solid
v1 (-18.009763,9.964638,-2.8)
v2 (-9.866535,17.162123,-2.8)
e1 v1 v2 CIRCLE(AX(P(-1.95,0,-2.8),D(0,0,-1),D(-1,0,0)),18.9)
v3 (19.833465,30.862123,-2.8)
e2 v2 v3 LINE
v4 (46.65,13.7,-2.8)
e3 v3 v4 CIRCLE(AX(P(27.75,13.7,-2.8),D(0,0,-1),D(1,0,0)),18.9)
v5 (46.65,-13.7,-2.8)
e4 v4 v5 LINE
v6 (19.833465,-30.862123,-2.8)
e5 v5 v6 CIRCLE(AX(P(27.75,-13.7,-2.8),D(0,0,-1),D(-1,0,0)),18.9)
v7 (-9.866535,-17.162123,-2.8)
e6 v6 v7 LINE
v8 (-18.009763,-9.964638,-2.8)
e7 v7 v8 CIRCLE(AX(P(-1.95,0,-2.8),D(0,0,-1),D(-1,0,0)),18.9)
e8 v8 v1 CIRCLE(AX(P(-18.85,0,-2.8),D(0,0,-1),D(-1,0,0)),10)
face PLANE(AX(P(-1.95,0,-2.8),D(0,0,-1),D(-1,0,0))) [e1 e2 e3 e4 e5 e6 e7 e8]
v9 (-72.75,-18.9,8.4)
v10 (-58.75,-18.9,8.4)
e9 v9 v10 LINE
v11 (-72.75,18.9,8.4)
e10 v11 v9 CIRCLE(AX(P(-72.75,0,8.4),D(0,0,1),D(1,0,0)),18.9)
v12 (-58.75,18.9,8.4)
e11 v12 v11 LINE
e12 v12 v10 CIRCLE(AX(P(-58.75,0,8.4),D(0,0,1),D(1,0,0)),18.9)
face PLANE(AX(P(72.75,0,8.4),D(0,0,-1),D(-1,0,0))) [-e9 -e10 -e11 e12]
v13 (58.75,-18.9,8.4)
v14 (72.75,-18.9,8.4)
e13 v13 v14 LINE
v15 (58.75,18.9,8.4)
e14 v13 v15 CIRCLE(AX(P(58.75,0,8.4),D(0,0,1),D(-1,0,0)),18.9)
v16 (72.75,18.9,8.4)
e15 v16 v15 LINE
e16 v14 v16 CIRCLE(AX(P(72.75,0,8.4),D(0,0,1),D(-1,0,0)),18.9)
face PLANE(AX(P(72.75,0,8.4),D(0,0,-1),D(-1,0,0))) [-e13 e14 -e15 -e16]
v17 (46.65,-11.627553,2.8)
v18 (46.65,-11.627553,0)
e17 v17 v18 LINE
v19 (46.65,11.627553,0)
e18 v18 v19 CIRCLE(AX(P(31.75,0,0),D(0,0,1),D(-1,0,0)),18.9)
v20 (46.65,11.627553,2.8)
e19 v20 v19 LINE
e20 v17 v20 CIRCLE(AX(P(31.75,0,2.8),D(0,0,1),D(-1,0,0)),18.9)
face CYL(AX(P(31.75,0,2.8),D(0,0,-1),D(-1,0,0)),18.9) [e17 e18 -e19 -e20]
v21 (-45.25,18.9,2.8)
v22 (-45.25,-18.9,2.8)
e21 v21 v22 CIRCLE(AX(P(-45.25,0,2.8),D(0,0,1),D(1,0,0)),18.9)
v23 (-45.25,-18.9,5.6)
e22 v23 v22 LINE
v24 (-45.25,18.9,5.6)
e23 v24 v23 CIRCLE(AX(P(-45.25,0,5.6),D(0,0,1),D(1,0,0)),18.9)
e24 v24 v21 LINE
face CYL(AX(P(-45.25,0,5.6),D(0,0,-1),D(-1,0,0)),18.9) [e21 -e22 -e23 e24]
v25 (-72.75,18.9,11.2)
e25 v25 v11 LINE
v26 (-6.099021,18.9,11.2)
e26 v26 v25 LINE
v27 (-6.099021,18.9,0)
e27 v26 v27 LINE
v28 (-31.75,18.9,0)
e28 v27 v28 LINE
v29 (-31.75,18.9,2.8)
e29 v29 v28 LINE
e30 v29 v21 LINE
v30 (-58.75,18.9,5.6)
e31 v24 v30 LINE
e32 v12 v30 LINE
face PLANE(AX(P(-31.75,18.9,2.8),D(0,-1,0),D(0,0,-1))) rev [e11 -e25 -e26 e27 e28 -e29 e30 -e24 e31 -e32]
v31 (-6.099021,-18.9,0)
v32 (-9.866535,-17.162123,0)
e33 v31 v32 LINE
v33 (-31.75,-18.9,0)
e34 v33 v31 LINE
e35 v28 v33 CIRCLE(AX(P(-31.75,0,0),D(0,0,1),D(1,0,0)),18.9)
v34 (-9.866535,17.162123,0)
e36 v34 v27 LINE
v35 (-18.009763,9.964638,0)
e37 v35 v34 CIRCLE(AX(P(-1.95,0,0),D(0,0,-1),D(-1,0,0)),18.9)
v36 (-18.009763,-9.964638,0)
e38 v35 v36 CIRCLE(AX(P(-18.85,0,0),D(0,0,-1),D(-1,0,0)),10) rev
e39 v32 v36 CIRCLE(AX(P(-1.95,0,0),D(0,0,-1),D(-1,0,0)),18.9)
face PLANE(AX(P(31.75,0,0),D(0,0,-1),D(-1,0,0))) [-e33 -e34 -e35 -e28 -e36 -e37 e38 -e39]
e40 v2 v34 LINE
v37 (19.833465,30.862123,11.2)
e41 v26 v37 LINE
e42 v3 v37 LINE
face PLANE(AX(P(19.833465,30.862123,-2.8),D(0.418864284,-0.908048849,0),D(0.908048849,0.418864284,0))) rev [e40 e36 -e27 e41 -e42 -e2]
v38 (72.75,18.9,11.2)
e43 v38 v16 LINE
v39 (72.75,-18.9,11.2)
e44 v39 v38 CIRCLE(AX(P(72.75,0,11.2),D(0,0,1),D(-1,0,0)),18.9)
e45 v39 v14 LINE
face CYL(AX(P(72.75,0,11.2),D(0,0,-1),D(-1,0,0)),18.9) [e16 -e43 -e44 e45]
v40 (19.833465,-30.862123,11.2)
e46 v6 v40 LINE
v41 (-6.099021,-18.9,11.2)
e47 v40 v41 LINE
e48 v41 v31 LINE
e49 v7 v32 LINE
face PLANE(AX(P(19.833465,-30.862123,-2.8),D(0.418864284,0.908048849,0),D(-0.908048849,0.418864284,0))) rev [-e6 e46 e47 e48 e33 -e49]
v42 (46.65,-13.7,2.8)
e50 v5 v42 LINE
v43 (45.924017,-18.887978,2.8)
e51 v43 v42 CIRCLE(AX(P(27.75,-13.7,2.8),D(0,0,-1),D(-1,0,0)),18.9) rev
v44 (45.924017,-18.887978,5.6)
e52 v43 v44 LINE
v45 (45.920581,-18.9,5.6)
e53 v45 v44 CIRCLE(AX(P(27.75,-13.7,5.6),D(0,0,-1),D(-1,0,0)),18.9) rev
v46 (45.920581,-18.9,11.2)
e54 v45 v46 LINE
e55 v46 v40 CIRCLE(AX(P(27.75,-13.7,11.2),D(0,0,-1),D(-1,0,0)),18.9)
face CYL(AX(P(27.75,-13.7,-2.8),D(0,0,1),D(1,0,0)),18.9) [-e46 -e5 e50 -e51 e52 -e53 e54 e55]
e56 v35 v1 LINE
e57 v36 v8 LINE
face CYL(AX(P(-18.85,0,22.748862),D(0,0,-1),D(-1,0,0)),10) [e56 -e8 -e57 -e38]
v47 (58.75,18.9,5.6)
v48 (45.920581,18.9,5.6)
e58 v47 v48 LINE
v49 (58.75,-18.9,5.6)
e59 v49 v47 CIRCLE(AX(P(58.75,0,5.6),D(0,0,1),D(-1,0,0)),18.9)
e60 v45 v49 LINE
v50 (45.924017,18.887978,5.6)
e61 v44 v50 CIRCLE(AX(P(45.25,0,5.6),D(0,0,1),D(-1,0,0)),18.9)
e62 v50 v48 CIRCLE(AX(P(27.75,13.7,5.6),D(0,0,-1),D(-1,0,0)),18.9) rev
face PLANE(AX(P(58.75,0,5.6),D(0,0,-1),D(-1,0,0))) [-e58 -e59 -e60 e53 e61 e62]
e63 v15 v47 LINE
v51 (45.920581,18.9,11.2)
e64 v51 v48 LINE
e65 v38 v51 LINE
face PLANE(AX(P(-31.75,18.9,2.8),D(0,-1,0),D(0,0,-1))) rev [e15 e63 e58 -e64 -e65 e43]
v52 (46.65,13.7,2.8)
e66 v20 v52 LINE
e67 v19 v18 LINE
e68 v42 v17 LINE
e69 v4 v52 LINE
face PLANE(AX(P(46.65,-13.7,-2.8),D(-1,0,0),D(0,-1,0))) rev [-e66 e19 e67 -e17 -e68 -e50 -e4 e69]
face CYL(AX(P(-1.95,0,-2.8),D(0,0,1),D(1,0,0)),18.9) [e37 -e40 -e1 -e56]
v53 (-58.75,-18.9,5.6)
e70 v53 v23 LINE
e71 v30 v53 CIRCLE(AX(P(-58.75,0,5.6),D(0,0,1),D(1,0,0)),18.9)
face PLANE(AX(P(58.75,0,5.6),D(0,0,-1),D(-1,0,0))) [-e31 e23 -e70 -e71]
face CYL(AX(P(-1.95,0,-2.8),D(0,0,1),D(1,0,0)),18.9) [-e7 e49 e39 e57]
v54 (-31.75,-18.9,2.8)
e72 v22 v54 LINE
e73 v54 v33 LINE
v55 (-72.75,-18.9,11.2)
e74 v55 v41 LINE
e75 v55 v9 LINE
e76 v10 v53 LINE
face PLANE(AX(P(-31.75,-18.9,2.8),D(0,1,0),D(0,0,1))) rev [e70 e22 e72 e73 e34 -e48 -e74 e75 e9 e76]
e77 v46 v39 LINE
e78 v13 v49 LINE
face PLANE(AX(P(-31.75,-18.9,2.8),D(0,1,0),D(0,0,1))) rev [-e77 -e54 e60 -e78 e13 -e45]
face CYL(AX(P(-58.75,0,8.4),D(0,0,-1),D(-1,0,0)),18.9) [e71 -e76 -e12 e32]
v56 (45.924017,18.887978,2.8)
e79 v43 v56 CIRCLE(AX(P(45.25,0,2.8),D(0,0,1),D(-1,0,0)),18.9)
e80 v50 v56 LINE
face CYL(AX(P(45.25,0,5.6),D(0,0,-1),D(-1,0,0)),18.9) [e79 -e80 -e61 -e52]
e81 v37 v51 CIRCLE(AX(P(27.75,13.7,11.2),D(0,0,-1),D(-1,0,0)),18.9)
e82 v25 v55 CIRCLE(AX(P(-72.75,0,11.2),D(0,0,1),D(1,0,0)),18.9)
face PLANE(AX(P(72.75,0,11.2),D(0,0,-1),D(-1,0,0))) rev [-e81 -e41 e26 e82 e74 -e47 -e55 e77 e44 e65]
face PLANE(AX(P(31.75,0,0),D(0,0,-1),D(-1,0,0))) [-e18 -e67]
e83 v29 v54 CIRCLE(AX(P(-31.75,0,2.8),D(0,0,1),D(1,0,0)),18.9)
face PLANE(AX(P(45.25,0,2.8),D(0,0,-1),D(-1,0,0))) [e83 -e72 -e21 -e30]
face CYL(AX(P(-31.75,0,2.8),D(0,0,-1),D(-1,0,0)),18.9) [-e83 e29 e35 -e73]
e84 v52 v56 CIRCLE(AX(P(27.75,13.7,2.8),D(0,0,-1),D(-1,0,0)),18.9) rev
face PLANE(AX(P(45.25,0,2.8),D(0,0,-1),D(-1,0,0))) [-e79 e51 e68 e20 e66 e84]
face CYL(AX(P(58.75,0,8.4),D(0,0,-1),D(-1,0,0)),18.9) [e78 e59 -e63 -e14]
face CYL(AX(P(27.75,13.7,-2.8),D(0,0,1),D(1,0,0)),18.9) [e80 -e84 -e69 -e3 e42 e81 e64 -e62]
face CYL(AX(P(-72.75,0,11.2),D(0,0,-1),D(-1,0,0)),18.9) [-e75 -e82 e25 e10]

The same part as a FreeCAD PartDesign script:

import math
import FreeCAD as App
import Part
import Sketcher

V = App.Vector
Q = App.Units.Quantity

doc = App.newDocument("Part")
body = doc.addObject("PartDesign::Body", "Body")

sketch1 = doc.addObject("Sketcher::SketchObject", "Sketch")
body.addObject(sketch1)
sketch1.AttachmentSupport = (doc.XY_Plane, [""])
sketch1.MapMode = "FlatFace"
sketch1.addGeometry(Part.LineSegment(V(31.75, 18.9, 0), V(-31.75, 18.9, 0)), False)
sketch1.addGeometry(Part.ArcOfCircle(Part.Circle(V(-31.75, 0, 0), V(0, 0, 1), 18.9), math.radians(90), math.radians(270)), False)
sketch1.addGeometry(Part.LineSegment(V(-31.75, -18.9, 0), V(31.75, -18.9, 0)), False)
sketch1.addGeometry(Part.ArcOfCircle(Part.Circle(V(31.75, 0, 0), V(0, 0, 1), 18.9), math.radians(-90), math.radians(90)), False)
sketch1.addConstraint(Sketcher.Constraint("Tangent", 0, 2, 1, 1))
sketch1.addConstraint(Sketcher.Constraint("Tangent", 1, 2, 2, 1))
sketch1.addConstraint(Sketcher.Constraint("Tangent", 2, 2, 3, 1))
sketch1.addConstraint(Sketcher.Constraint("Tangent", 3, 2, 0, 1))
sketch1.addConstraint(Sketcher.Constraint("Horizontal", 0))
sketch1.addConstraint(Sketcher.Constraint("Horizontal", 2))
sketch1.addConstraint(Sketcher.Constraint("Symmetric", 1, 3, 3, 3, -1, 1))
sketch1.addConstraint(Sketcher.Constraint("Radius", 1, Q("18.9 mm")))
sketch1.addConstraint(Sketcher.Constraint("DistanceX", 0, 2, 0, 1, Q("63.5 mm")))
pad1 = doc.addObject("PartDesign::Pad", "Pad")
body.addObject(pad1)
pad1.Profile = sketch1
pad1.Length = 2.8

sketch2 = doc.addObject("Sketcher::SketchObject", "Sketch001")
body.addObject(sketch2)
sketch2.AttachmentSupport = (doc.XY_Plane, [""])
sketch2.MapMode = "FlatFace"
sketch2.addGeometry(Part.LineSegment(V(46.65, 13.7, 0), V(46.65, -13.7, 0)), False)
sketch2.addGeometry(Part.ArcOfCircle(Part.Circle(V(27.75, -13.7, 0), V(0, 0, 1), 18.9), math.radians(-114.762906), math.radians(0)), False)
sketch2.addGeometry(Part.LineSegment(V(19.833465, -30.862123, 0), V(-9.866535, -17.162123, 0)), False)
sketch2.addGeometry(Part.ArcOfCircle(Part.Circle(V(-1.95, 0, 0), V(0, 0, 1), 18.9), math.radians(114.762906), math.radians(245.237094)), False)
sketch2.addGeometry(Part.LineSegment(V(-9.866535, 17.162123, 0), V(19.833465, 30.862123, 0)), False)
sketch2.addGeometry(Part.ArcOfCircle(Part.Circle(V(27.75, 13.7, 0), V(0, 0, 1), 18.9), math.radians(0), math.radians(114.762906)), False)
sketch2.addConstraint(Sketcher.Constraint("Tangent", 0, 2, 1, 2))
sketch2.addConstraint(Sketcher.Constraint("Tangent", 1, 1, 2, 1))
sketch2.addConstraint(Sketcher.Constraint("Tangent", 2, 2, 3, 2))
sketch2.addConstraint(Sketcher.Constraint("Tangent", 3, 1, 4, 1))
sketch2.addConstraint(Sketcher.Constraint("Tangent", 4, 2, 5, 2))
sketch2.addConstraint(Sketcher.Constraint("Tangent", 5, 1, 0, 1))
sketch2.addConstraint(Sketcher.Constraint("Vertical", 0))
sketch2.addConstraint(Sketcher.Constraint("Equal", 1, 3))
sketch2.addConstraint(Sketcher.Constraint("Equal", 3, 5))
sketch2.addConstraint(Sketcher.Constraint("Symmetric", 2, 2, 3, 1, -1))
sketch2.addConstraint(Sketcher.Constraint("Radius", 1, Q("18.9 mm")))
sketch2.addConstraint(Sketcher.Constraint("DistanceY", 0, 2, 0, 1, Q("27.4 mm")))
sketch2.addConstraint(Sketcher.Constraint("DistanceX", 3, 3, 1, 3, Q("29.7 mm")))
sketch2.addConstraint(Sketcher.Constraint("DistanceX", -1, 1, 1, 3, Q("27.75 mm")))
pad2 = doc.addObject("PartDesign::Pad", "Pad001")
body.addObject(pad2)
pad2.Profile = sketch2
pad2.Length = 2.8
pad2.Reversed = True

sketch3 = doc.addObject("Sketcher::SketchObject", "Sketch002")
body.addObject(sketch3)
sketch3.AttachmentSupport = (doc.XY_Plane, [""])
sketch3.MapMode = "FlatFace"
sketch3.AttachmentOffset = App.Placement(V(0, 0, 2.8), App.Rotation())
sketch3.addGeometry(Part.LineSegment(V(45.25, 18.9, 0), V(-45.25, 18.9, 0)), False)
sketch3.addGeometry(Part.ArcOfCircle(Part.Circle(V(-45.25, 0, 0), V(0, 0, 1), 18.9), math.radians(90), math.radians(270)), False)
sketch3.addGeometry(Part.LineSegment(V(-45.25, -18.9, 0), V(45.25, -18.9, 0)), False)
sketch3.addGeometry(Part.ArcOfCircle(Part.Circle(V(45.25, 0, 0), V(0, 0, 1), 18.9), math.radians(-90), math.radians(90)), False)
sketch3.addConstraint(Sketcher.Constraint("Tangent", 0, 2, 1, 1))
sketch3.addConstraint(Sketcher.Constraint("Tangent", 1, 2, 2, 1))
sketch3.addConstraint(Sketcher.Constraint("Tangent", 2, 2, 3, 1))
sketch3.addConstraint(Sketcher.Constraint("Tangent", 3, 2, 0, 1))
sketch3.addConstraint(Sketcher.Constraint("Horizontal", 0))
sketch3.addConstraint(Sketcher.Constraint("Horizontal", 2))
sketch3.addConstraint(Sketcher.Constraint("Symmetric", 1, 3, 3, 3, -1, 1))
sketch3.addConstraint(Sketcher.Constraint("Radius", 1, Q("18.9 mm")))
sketch3.addConstraint(Sketcher.Constraint("DistanceX", 0, 2, 0, 1, Q("90.5 mm")))
pad3 = doc.addObject("PartDesign::Pad", "Pad002")
body.addObject(pad3)
pad3.Profile = sketch3
pad3.Length = 2.8

sketch4 = doc.addObject("Sketcher::SketchObject", "Sketch003")
body.addObject(sketch4)
sketch4.AttachmentSupport = (doc.XY_Plane, [""])
sketch4.MapMode = "FlatFace"
sketch4.AttachmentOffset = App.Placement(V(0, 0, 5.6), App.Rotation())
sketch4.addGeometry(Part.LineSegment(V(58.75, 18.9, 0), V(-58.75, 18.9, 0)), False)
sketch4.addGeometry(Part.ArcOfCircle(Part.Circle(V(-58.75, 0, 0), V(0, 0, 1), 18.9), math.radians(90), math.radians(270)), False)
sketch4.addGeometry(Part.LineSegment(V(-58.75, -18.9, 0), V(58.75, -18.9, 0)), False)
sketch4.addGeometry(Part.ArcOfCircle(Part.Circle(V(58.75, 0, 0), V(0, 0, 1), 18.9), math.radians(-90), math.radians(90)), False)
sketch4.addConstraint(Sketcher.Constraint("Tangent", 0, 2, 1, 1))
sketch4.addConstraint(Sketcher.Constraint("Tangent", 1, 2, 2, 1))
sketch4.addConstraint(Sketcher.Constraint("Tangent", 2, 2, 3, 1))
sketch4.addConstraint(Sketcher.Constraint("Tangent", 3, 2, 0, 1))
sketch4.addConstraint(Sketcher.Constraint("Horizontal", 0))
sketch4.addConstraint(Sketcher.Constraint("Horizontal", 2))
sketch4.addConstraint(Sketcher.Constraint("Symmetric", 1, 3, 3, 3, -1, 1))
sketch4.addConstraint(Sketcher.Constraint("Radius", 1, Q("18.9 mm")))
sketch4.addConstraint(Sketcher.Constraint("DistanceX", 0, 2, 0, 1, Q("117.5 mm")))
pad4 = doc.addObject("PartDesign::Pad", "Pad003")
body.addObject(pad4)
pad4.Profile = sketch4
pad4.Length = 2.8

sketch5 = doc.addObject("Sketcher::SketchObject", "Sketch004")
body.addObject(sketch5)
sketch5.AttachmentSupport = (doc.XY_Plane, [""])
sketch5.MapMode = "FlatFace"
sketch5.AttachmentOffset = App.Placement(V(0, 0, 8.4), App.Rotation())
sketch5.addGeometry(Part.LineSegment(V(72.75, 18.9, 0), V(-72.75, 18.9, 0)), False)
sketch5.addGeometry(Part.ArcOfCircle(Part.Circle(V(-72.75, 0, 0), V(0, 0, 1), 18.9), math.radians(90), math.radians(270)), False)
sketch5.addGeometry(Part.LineSegment(V(-72.75, -18.9, 0), V(72.75, -18.9, 0)), False)
sketch5.addGeometry(Part.ArcOfCircle(Part.Circle(V(72.75, 0, 0), V(0, 0, 1), 18.9), math.radians(-90), math.radians(90)), False)
sketch5.addConstraint(Sketcher.Constraint("Tangent", 0, 2, 1, 1))
sketch5.addConstraint(Sketcher.Constraint("Tangent", 1, 2, 2, 1))
sketch5.addConstraint(Sketcher.Constraint("Tangent", 2, 2, 3, 1))
sketch5.addConstraint(Sketcher.Constraint("Tangent", 3, 2, 0, 1))
sketch5.addConstraint(Sketcher.Constraint("Horizontal", 0))
sketch5.addConstraint(Sketcher.Constraint("Horizontal", 2))
sketch5.addConstraint(Sketcher.Constraint("Symmetric", 1, 3, 3, 3, -1, 1))
sketch5.addConstraint(Sketcher.Constraint("Radius", 1, Q("18.9 mm")))
sketch5.addConstraint(Sketcher.Constraint("DistanceX", 0, 2, 0, 1, Q("145.5 mm")))
pad5 = doc.addObject("PartDesign::Pad", "Pad004")
body.addObject(pad5)
pad5.Profile = sketch5
pad5.Length = 2.8

sketch6 = doc.addObject("Sketcher::SketchObject", "Sketch005")
body.addObject(sketch6)
sketch6.AttachmentSupport = (doc.XY_Plane, [""])
sketch6.MapMode = "FlatFace"
sketch6.addGeometry(Part.LineSegment(V(31.75, -18.9, 0), V(-6.099021, -18.9, 0)), False)
sketch6.addGeometry(Part.LineSegment(V(-6.099021, -18.9, 0), V(19.833465, -30.862123, 0)), False)
sketch6.addGeometry(Part.ArcOfCircle(Part.Circle(V(27.75, -13.7, 0), V(0, 0, 1), 18.9), math.radians(-114.762906), math.radians(0)), False)
sketch6.addGeometry(Part.LineSegment(V(46.65, -13.7, 0), V(46.65, -11.627553, 0)), False)
sketch6.addGeometry(Part.ArcOfCircle(Part.Circle(V(31.75, 0, 0), V(0, 0, 1), 18.9), math.radians(-90), math.radians(-37.967506)), False)
sketch6.addGeometry(Part.LineSegment(V(46.65, 11.627553, 0), V(46.65, 13.7, 0)), False)
sketch6.addGeometry(Part.ArcOfCircle(Part.Circle(V(27.75, 13.7, 0), V(0, 0, 1), 18.9), math.radians(0), math.radians(114.762906)), False)
sketch6.addGeometry(Part.LineSegment(V(19.833465, 30.862123, 0), V(-6.099021, 18.9, 0)), False)
sketch6.addGeometry(Part.LineSegment(V(-6.099021, 18.9, 0), V(31.75, 18.9, 0)), False)
sketch6.addGeometry(Part.ArcOfCircle(Part.Circle(V(31.75, 0, 0), V(0, 0, 1), 18.9), math.radians(37.967506), math.radians(90)), False)
sketch6.addConstraint(Sketcher.Constraint("Coincident", 0, 2, 1, 1))
sketch6.addConstraint(Sketcher.Constraint("Tangent", 1, 2, 2, 1))
sketch6.addConstraint(Sketcher.Constraint("Tangent", 2, 2, 3, 1))
sketch6.addConstraint(Sketcher.Constraint("Coincident", 3, 2, 4, 2))
sketch6.addConstraint(Sketcher.Constraint("Tangent", 4, 1, 0, 1))
sketch6.addConstraint(Sketcher.Constraint("Tangent", 5, 2, 6, 1))
sketch6.addConstraint(Sketcher.Constraint("Tangent", 6, 2, 7, 1))
sketch6.addConstraint(Sketcher.Constraint("Coincident", 7, 2, 8, 1))
sketch6.addConstraint(Sketcher.Constraint("Tangent", 8, 2, 9, 2))
sketch6.addConstraint(Sketcher.Constraint("Coincident", 9, 1, 5, 1))
sketch6.addConstraint(Sketcher.Constraint("Horizontal", 0))
sketch6.addConstraint(Sketcher.Constraint("Vertical", 3))
sketch6.addConstraint(Sketcher.Constraint("Vertical", 5))
sketch6.addConstraint(Sketcher.Constraint("Horizontal", 8))
sketch6.addConstraint(Sketcher.Constraint("Coincident", 9, 3, 4, 3))
sketch6.addConstraint(Sketcher.Constraint("Equal", 2, 4))
sketch6.addConstraint(Sketcher.Constraint("Equal", 4, 6))
sketch6.addConstraint(Sketcher.Constraint("Equal", 6, 9))
sketch6.addConstraint(Sketcher.Constraint("Symmetric", 2, 3, 6, 3, -1))
sketch6.addConstraint(Sketcher.Constraint("Symmetric", 0, 2, 7, 2, -1))
sketch6.addConstraint(Sketcher.Constraint("Radius", 2, Q("18.9 mm")))
sketch6.addConstraint(Sketcher.Constraint("DistanceX", 2, 3, 4, 3, Q("4 mm")))
sketch6.addConstraint(Sketcher.Constraint("DistanceY", 2, 3, -1, 1, Q("13.7 mm")))
sketch6.addConstraint(Sketcher.Constraint("DistanceX", -1, 1, 2, 3, Q("27.75 mm")))
sketch6.addConstraint(Sketcher.Constraint("DistanceX", 0, 2, 0, 1, Q("37.849021 mm")))
pad6 = doc.addObject("PartDesign::Pad", "Pad005")
body.addObject(pad6)
pad6.Profile = sketch6
pad6.Length = 11.2

sketch7 = doc.addObject("Sketcher::SketchObject", "Sketch006")
body.addObject(sketch7)
sketch7.AttachmentSupport = (doc.XY_Plane, [""])
sketch7.MapMode = "FlatFace"
sketch7.addGeometry(Part.ArcOfCircle(Part.Circle(V(-18.85, 0, 0), V(0, 0, 1), 10), math.radians(85.180116), math.radians(274.819884)), False)
sketch7.addGeometry(Part.ArcOfCircle(Part.Circle(V(-1.95, 0, 0), V(0, 0, 1), 18.9), math.radians(148.181546), math.radians(211.818454)), False)
sketch7.addConstraint(Sketcher.Constraint("Coincident", 0, 1, 1, 1))
sketch7.addConstraint(Sketcher.Constraint("Coincident", 1, 2, 0, 2))
sketch7.addConstraint(Sketcher.Constraint("Symmetric", 0, 1, 1, 2, -1))
sketch7.addConstraint(Sketcher.Constraint("Radius", 0, Q("10 mm")))
sketch7.addConstraint(Sketcher.Constraint("Radius", 1, Q("18.9 mm")))
sketch7.addConstraint(Sketcher.Constraint("DistanceX", 0, 3, 1, 3, Q("16.9 mm")))
sketch7.addConstraint(Sketcher.Constraint("DistanceX", 0, 3, -1, 1, Q("18.85 mm")))
pad7 = doc.addObject("PartDesign::Pad", "Pad006")
body.addObject(pad7)
pad7.Profile = sketch7
pad7.Length = 2.8
pad7.Reversed = True

doc.recompute()
